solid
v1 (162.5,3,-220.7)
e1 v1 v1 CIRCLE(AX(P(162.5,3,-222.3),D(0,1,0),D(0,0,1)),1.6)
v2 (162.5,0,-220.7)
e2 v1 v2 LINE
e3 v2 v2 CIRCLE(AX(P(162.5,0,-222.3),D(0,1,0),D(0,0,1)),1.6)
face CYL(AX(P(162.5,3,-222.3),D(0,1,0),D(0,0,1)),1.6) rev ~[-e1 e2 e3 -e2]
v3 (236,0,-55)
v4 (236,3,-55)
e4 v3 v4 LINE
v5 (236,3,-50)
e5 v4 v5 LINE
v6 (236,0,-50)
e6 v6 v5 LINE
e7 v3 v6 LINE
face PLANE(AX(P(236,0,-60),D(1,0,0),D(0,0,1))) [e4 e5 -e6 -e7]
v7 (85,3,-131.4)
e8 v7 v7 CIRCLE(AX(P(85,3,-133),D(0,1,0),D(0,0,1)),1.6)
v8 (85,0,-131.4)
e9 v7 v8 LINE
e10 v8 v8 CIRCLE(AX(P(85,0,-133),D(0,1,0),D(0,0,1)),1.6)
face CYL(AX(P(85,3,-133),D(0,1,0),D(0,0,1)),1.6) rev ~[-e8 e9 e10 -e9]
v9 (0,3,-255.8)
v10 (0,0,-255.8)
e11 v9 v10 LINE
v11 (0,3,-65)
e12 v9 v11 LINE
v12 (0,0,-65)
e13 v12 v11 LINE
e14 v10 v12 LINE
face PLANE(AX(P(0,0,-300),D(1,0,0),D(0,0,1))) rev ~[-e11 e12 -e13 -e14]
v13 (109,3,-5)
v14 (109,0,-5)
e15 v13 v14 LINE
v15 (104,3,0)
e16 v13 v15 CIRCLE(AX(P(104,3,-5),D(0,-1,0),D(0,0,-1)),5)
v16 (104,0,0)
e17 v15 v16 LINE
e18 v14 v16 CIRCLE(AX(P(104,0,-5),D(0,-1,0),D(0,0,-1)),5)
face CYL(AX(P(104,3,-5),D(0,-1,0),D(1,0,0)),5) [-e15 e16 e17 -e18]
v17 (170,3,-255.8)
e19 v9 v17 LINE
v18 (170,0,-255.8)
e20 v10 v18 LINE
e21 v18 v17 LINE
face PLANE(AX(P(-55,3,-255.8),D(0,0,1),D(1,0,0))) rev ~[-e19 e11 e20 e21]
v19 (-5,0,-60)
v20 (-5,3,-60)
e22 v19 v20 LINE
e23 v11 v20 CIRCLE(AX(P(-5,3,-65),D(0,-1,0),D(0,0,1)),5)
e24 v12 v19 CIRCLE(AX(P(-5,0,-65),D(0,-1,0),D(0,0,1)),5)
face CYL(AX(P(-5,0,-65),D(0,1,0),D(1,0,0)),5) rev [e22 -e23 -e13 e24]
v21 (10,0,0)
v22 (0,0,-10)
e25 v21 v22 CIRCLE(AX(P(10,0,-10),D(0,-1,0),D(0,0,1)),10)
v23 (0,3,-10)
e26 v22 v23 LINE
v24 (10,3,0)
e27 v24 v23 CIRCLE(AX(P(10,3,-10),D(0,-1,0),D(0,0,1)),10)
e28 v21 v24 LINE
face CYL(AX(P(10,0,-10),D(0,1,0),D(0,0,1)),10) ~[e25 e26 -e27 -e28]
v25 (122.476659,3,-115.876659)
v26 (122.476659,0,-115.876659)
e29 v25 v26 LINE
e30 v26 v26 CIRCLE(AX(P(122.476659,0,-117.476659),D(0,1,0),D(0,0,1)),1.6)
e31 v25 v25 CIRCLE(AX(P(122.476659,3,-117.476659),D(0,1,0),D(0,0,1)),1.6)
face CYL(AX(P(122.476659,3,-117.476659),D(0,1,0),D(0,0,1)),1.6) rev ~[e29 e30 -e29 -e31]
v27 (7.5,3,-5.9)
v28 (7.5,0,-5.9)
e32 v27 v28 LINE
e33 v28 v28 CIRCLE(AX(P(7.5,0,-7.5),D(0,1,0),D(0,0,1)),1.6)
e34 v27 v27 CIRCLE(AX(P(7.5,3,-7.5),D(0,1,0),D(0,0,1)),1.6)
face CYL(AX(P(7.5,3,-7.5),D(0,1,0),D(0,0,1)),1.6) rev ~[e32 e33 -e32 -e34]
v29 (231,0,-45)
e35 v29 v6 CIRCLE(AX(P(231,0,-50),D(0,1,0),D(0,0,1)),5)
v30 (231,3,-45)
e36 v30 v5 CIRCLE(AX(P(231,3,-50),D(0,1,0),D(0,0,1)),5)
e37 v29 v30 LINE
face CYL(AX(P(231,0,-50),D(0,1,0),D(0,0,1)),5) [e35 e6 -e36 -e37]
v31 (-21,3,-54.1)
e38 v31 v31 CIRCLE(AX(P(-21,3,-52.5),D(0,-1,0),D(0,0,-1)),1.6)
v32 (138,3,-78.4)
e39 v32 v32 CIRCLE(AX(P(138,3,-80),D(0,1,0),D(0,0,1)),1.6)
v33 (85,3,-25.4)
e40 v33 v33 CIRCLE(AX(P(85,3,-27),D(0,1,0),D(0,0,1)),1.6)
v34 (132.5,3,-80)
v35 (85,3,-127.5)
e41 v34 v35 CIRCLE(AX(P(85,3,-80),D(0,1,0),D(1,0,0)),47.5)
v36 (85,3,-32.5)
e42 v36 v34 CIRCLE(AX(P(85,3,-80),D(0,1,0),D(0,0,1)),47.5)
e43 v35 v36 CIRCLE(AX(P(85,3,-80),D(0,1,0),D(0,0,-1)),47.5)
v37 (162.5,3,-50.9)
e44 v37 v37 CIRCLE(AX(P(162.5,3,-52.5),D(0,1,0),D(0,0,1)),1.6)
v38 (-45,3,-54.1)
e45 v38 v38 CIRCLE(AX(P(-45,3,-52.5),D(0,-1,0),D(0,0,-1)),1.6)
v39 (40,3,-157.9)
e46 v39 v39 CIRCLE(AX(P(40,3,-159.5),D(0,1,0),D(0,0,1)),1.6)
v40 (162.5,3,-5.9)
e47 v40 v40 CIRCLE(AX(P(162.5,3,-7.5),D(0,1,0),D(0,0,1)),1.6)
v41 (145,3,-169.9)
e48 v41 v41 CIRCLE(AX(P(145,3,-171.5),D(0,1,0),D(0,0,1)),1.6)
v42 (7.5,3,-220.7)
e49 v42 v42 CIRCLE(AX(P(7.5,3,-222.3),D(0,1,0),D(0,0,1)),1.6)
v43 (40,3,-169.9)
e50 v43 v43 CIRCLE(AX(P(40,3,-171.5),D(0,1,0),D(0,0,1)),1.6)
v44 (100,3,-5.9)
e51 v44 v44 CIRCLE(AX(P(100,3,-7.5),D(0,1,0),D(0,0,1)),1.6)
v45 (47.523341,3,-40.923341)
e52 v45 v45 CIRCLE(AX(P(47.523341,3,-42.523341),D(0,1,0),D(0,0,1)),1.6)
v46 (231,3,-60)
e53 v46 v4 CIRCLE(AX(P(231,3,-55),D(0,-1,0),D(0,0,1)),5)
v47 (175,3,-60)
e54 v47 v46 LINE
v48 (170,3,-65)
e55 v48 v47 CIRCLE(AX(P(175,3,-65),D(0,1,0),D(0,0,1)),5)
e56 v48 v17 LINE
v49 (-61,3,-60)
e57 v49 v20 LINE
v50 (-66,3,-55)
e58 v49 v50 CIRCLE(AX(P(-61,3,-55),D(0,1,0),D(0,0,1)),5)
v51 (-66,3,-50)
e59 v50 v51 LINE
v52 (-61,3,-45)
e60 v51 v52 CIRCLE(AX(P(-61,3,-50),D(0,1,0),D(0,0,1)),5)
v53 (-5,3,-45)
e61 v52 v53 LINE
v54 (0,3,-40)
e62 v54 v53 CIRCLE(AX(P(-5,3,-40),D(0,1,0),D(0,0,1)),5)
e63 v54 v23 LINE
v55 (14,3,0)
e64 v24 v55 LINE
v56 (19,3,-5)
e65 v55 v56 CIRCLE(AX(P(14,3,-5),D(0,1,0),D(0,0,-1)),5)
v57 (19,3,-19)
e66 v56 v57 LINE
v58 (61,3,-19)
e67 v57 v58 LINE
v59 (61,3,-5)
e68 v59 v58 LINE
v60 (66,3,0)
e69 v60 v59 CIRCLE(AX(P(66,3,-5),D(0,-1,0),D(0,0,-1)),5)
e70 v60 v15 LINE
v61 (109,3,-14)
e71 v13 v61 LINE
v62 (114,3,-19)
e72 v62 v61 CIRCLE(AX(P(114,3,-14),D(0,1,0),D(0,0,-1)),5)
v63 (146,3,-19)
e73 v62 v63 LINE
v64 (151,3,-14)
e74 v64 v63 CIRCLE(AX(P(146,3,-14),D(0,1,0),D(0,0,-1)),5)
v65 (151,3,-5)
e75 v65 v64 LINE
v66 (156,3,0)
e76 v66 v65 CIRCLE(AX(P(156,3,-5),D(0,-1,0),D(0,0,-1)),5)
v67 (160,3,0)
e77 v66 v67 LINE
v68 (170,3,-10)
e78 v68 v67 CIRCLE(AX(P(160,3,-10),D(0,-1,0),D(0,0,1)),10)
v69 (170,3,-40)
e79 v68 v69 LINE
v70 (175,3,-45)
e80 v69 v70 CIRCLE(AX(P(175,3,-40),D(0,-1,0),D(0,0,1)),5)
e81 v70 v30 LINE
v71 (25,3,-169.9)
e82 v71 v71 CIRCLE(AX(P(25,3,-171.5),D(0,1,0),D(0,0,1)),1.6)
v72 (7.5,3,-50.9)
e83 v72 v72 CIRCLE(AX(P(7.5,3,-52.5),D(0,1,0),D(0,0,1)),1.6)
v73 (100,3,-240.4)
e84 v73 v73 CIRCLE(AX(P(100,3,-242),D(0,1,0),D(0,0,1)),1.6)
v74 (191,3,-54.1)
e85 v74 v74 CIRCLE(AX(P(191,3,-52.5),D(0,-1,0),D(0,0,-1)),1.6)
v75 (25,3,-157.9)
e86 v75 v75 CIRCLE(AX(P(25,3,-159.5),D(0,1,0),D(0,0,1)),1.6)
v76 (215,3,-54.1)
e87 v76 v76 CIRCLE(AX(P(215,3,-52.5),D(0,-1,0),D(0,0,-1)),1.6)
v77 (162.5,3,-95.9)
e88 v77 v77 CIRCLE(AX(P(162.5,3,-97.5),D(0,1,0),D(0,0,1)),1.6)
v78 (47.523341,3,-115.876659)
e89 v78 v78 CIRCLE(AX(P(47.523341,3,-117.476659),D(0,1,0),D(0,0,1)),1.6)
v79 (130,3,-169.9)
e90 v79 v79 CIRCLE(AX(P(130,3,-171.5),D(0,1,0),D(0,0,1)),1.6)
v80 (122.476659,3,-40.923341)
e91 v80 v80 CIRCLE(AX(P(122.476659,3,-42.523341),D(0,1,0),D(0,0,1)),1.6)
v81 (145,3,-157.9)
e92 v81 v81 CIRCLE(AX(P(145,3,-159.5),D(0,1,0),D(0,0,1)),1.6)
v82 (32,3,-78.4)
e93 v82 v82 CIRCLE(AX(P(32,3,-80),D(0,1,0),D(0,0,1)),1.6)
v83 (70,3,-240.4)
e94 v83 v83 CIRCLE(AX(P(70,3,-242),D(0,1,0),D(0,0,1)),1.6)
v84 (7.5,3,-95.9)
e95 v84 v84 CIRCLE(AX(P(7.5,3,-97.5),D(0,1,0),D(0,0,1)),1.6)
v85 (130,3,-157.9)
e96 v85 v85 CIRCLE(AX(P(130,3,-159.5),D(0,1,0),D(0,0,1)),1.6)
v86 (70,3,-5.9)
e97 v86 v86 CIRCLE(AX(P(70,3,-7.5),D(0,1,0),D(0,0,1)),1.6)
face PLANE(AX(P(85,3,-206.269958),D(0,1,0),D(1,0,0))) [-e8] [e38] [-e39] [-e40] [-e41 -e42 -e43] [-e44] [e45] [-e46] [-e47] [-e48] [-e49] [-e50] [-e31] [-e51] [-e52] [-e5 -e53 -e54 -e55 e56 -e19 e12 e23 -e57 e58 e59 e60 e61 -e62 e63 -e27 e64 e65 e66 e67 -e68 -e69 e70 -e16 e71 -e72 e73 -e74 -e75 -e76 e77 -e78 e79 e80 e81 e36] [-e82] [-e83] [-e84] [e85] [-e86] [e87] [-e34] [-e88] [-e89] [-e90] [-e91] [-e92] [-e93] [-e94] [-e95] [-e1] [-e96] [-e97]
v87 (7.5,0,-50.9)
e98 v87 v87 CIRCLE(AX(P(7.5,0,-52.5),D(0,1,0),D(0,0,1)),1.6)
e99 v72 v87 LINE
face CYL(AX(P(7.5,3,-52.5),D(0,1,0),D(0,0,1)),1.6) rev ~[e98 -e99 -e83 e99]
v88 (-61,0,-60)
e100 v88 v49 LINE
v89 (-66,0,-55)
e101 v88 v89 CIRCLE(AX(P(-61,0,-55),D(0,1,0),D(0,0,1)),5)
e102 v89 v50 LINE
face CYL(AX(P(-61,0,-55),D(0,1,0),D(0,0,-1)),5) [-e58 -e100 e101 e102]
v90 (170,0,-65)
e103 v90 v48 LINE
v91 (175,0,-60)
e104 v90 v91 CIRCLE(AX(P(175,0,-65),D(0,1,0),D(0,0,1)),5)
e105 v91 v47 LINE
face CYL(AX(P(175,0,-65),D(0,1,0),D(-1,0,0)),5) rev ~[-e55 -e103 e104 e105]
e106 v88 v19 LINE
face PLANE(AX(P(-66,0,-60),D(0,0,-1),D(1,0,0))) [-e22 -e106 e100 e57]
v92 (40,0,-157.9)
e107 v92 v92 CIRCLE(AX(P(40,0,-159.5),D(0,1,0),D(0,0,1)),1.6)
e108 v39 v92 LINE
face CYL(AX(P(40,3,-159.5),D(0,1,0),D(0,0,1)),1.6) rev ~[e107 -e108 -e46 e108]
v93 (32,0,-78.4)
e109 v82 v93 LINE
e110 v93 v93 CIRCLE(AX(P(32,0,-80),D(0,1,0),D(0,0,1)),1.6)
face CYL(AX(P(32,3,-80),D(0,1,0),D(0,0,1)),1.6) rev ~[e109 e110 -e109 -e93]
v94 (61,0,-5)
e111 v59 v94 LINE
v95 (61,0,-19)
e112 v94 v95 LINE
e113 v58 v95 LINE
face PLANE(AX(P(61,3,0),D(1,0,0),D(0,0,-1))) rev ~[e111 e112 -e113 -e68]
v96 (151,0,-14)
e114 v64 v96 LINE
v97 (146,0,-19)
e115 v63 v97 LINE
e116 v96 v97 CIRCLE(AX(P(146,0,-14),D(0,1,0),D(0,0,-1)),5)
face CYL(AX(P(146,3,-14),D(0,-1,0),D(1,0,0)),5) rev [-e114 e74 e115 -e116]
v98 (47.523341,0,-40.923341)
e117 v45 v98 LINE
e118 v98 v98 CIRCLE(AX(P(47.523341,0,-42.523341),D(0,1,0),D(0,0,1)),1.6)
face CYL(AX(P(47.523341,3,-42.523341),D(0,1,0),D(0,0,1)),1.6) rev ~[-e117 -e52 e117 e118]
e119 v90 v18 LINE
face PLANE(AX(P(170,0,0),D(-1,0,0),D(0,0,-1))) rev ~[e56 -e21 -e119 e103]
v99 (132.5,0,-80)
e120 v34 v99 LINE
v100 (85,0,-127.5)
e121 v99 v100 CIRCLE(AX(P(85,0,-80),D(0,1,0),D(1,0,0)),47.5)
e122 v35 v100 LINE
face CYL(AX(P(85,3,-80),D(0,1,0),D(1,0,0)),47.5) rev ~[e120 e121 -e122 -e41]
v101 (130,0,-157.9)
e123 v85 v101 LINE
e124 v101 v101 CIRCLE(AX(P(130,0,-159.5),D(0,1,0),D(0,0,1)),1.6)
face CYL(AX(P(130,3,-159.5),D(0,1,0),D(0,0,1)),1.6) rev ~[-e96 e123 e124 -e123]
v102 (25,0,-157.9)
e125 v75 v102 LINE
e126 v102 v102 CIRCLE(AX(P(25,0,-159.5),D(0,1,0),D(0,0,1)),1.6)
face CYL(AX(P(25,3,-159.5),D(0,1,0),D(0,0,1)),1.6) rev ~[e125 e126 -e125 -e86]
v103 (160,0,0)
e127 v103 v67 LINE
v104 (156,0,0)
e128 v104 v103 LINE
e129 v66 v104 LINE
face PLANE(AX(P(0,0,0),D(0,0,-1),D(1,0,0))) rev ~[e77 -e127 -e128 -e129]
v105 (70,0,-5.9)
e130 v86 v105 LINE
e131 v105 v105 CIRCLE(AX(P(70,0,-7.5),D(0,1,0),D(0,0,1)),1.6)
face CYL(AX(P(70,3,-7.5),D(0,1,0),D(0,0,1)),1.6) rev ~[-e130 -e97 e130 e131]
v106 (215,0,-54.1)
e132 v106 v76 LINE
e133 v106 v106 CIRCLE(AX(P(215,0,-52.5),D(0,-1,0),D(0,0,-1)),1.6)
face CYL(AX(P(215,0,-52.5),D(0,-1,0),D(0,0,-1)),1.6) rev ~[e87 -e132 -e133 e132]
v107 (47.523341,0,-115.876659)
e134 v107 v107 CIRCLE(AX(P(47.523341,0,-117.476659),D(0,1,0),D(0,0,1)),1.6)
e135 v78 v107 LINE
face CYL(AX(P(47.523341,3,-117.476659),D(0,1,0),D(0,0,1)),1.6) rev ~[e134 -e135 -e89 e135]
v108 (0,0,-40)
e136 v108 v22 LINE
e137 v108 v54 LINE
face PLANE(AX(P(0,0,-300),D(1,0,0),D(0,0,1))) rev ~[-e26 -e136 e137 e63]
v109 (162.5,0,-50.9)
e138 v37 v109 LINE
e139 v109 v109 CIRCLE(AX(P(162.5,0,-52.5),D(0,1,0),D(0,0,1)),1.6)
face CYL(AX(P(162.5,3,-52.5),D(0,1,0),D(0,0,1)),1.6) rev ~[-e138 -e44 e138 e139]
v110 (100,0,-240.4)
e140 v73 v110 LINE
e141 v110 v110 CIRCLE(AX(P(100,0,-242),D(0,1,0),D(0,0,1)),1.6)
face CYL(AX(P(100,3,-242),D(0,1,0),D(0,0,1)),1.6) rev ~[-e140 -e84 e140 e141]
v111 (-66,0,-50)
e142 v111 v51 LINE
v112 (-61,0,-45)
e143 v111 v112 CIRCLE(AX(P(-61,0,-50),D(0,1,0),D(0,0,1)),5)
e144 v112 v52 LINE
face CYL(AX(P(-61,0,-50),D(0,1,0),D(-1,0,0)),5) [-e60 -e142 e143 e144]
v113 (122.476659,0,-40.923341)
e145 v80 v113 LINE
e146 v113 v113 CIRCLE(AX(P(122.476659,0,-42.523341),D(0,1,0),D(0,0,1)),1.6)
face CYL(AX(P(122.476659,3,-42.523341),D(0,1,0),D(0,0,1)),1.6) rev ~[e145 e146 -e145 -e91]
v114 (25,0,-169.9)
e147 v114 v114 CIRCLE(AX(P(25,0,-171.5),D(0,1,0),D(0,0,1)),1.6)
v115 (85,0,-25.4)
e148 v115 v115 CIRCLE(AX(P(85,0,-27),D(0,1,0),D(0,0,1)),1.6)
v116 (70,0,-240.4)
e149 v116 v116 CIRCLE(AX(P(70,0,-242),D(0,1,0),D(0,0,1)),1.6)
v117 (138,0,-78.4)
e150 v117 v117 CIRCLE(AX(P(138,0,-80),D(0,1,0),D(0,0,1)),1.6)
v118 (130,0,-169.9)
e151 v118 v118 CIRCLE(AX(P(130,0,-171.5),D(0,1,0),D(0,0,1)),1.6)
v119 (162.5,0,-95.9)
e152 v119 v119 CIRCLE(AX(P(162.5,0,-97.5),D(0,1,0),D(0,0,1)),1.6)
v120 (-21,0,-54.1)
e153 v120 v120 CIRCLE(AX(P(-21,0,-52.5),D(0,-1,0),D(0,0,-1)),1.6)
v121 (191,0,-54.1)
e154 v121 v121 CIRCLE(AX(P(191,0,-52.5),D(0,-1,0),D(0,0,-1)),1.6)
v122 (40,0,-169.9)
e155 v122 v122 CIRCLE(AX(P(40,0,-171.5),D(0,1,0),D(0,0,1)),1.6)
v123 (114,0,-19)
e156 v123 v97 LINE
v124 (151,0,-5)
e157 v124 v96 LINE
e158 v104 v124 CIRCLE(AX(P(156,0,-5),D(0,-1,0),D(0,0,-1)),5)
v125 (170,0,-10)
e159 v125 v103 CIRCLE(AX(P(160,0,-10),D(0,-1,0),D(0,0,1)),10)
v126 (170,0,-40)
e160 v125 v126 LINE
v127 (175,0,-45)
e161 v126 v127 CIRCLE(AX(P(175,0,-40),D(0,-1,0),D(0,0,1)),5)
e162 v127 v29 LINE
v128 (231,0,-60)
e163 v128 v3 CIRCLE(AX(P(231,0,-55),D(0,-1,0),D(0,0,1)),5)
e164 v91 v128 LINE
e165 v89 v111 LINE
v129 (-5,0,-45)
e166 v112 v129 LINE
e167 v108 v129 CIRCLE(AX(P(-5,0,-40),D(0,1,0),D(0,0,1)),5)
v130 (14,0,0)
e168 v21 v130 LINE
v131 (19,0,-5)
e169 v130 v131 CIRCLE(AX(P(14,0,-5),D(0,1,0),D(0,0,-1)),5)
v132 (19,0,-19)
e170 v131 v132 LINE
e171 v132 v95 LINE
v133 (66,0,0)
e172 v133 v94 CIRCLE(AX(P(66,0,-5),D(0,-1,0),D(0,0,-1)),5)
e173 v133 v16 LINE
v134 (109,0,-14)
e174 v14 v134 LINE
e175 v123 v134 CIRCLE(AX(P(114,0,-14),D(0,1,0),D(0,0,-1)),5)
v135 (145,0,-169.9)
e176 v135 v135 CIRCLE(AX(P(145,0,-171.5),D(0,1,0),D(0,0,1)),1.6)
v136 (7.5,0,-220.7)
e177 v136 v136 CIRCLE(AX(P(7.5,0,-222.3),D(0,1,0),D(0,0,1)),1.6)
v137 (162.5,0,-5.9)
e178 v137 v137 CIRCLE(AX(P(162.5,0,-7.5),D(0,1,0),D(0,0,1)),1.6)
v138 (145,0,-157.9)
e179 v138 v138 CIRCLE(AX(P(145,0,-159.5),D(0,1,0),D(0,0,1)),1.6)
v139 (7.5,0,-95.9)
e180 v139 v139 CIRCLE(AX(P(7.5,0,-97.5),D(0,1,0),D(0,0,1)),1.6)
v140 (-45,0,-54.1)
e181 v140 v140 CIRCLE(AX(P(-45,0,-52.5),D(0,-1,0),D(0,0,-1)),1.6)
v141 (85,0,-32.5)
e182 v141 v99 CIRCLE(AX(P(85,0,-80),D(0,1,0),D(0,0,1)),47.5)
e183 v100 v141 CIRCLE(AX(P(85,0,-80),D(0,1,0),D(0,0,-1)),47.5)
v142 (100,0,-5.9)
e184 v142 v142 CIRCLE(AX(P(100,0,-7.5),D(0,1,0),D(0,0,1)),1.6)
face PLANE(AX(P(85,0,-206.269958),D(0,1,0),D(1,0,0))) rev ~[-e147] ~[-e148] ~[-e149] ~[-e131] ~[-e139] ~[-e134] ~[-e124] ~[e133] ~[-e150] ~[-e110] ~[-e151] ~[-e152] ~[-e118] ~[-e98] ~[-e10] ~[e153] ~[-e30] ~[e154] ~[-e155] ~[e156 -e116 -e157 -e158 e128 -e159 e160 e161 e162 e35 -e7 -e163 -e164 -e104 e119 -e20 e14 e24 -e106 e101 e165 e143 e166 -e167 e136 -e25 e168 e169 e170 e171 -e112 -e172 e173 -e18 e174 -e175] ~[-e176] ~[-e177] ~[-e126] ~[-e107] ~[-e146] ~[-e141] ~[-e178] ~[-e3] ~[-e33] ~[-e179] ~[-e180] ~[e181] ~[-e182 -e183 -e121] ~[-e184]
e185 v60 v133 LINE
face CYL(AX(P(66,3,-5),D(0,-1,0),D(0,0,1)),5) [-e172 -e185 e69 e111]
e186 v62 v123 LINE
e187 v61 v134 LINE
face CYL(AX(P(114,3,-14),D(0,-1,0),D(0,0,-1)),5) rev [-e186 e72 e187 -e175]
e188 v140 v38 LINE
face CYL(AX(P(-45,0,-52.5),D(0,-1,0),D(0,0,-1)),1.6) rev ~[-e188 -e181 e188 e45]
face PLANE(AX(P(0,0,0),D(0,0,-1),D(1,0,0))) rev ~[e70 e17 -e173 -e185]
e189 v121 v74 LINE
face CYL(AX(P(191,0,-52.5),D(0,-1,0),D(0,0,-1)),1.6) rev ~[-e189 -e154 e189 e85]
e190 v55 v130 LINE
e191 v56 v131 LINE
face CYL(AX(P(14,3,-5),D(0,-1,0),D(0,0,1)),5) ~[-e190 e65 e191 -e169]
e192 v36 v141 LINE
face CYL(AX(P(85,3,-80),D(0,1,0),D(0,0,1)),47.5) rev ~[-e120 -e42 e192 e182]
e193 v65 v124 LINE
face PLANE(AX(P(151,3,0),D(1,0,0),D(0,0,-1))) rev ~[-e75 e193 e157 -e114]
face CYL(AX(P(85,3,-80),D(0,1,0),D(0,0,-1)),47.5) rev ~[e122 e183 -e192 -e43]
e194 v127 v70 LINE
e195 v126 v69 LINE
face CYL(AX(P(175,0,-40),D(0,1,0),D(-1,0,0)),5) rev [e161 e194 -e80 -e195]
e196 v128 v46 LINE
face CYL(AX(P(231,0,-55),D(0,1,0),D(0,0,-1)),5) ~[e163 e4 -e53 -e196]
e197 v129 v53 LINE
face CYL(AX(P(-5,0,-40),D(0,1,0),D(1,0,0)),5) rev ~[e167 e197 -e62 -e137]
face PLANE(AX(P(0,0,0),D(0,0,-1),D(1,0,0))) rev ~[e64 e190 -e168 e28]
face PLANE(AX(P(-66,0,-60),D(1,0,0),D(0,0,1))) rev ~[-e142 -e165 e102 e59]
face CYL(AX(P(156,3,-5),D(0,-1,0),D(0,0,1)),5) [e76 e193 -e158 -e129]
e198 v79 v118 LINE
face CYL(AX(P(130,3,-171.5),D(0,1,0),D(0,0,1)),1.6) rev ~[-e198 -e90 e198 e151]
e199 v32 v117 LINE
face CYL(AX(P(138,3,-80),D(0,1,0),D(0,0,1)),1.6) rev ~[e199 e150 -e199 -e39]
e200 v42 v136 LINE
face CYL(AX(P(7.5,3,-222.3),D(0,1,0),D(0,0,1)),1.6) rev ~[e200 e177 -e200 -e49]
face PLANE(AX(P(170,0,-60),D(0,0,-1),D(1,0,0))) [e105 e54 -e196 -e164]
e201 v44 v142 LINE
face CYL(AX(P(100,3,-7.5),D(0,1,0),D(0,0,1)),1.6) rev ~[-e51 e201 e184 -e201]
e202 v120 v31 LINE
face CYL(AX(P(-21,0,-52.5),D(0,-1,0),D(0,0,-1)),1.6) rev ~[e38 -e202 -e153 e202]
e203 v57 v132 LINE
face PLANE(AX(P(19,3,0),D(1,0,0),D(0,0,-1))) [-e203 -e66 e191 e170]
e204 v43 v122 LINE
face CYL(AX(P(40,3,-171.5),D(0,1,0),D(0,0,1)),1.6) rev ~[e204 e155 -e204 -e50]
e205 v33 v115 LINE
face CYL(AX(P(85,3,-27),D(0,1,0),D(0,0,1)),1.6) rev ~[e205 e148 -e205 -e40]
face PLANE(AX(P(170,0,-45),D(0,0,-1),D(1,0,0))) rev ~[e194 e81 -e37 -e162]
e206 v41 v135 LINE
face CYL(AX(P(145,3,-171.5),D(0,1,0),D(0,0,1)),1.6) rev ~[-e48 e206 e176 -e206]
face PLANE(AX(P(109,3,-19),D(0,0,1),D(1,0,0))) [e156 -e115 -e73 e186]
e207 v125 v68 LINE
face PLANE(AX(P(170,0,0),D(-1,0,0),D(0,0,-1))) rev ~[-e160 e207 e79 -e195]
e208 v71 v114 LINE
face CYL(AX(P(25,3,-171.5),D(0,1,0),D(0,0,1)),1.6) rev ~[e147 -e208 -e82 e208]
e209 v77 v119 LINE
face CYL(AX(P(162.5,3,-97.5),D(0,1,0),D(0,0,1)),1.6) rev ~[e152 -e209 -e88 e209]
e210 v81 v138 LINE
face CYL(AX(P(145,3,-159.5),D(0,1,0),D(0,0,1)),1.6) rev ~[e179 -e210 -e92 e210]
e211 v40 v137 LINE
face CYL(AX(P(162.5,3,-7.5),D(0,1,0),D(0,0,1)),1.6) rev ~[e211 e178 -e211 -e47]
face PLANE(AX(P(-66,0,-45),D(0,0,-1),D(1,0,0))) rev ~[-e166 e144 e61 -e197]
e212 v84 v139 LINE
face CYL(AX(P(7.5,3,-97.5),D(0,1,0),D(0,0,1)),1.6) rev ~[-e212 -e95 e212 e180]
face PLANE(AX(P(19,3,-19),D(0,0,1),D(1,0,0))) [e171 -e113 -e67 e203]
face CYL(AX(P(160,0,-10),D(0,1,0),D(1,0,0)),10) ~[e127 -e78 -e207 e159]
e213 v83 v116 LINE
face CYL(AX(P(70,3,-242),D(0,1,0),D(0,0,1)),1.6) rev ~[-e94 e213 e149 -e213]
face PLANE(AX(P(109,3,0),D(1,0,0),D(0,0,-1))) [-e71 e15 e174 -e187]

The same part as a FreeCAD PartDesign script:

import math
import FreeCAD as App
import Part
import Sketcher
from FreeCAD import Vector
Q = App.Units.Quantity


def edges_at(feature, points):
    """Names of the edges that pass closest to the given points."""
    edges = feature.Shape.Edges
    near = lambda p: min(range(len(edges)), key=lambda i: edges[i].distToShape(Part.Vertex(*p))[0])
    return sorted({f"Edge{near(p) + 1}" for p in points})

doc = App.newDocument("Part")
body = doc.addObject("PartDesign::Body", "Body")

sketch1 = body.newObject("Sketcher::SketchObject", "Sketch")
sketch1.AttachmentSupport = (doc.getObject("XZ_Plane"), [""])
sketch1.MapMode = "FlatFace"
sketch1.addGeometry(Part.LineSegment(Vector(0, 0, 0), Vector(170, 0, 0)), False)
sketch1.addGeometry(Part.LineSegment(Vector(170, 0, 0), Vector(170, -300, 0)), False)
sketch1.addGeometry(Part.LineSegment(Vector(170, -300, 0), Vector(225, -300, 0)), False)
sketch1.addGeometry(Part.LineSegment(Vector(225, -300, 0), Vector(225, -368, 0)), False)
sketch1.addGeometry(Part.LineSegment(Vector(225, -368, 0), Vector(85, -330, 0)), False)
sketch1.addGeometry(Part.LineSegment(Vector(85, -330, 0), Vector(-55, -368, 0)), False)
sketch1.addGeometry(Part.LineSegment(Vector(-55, -368, 0), Vector(-55, -300, 0)), False)
sketch1.addGeometry(Part.LineSegment(Vector(-55, -300, 0), Vector(0, -300, 0)), False)
sketch1.addGeometry(Part.LineSegment(Vector(0, -300, 0), Vector(0, 0, 0)), False)
sketch1.addConstraint(Sketcher.Constraint("Coincident", 0, 2, 1, 1))
sketch1.addConstraint(Sketcher.Constraint("Coincident", 1, 2, 2, 1))
sketch1.addConstraint(Sketcher.Constraint("Coincident", 2, 2, 3, 1))
sketch1.addConstraint(Sketcher.Constraint("Coincident", 3, 2, 4, 1))
sketch1.addConstraint(Sketcher.Constraint("Coincident", 4, 2, 5, 1))
sketch1.addConstraint(Sketcher.Constraint("Coincident", 5, 2, 6, 1))
sketch1.addConstraint(Sketcher.Constraint("Coincident", 6, 2, 7, 1))
sketch1.addConstraint(Sketcher.Constraint("Coincident", 7, 2, 8, 1))
sketch1.addConstraint(Sketcher.Constraint("Coincident", 8, 2, 0, 1))
sketch1.addConstraint(Sketcher.Constraint("Horizontal", 0))
sketch1.addConstraint(Sketcher.Constraint("Vertical", 1))
sketch1.addConstraint(Sketcher.Constraint("Horizontal", 2))
sketch1.addConstraint(Sketcher.Constraint("Vertical", 3))
sketch1.addConstraint(Sketcher.Constraint("Vertical", 6))
sketch1.addConstraint(Sketcher.Constraint("Horizontal", 7))
sketch1.addConstraint(Sketcher.Constraint("Vertical", 8))
sketch1.addConstraint(Sketcher.Constraint("Coincident", 8, 2, -1, 1))
sketch1.addConstraint(Sketcher.Constraint("Horizontal", 3, 2, 5, 2))
sketch1.addConstraint(Sketcher.Constraint("Horizontal", 2, 2, 6, 2))
sketch1.addConstraint(Sketcher.Constraint("Equal", 2, 7))
sketch1.addConstraint(Sketcher.Constraint("Equal", 4, 5))
sketch1.addConstraint(Sketcher.Constraint("DistanceX", 0, 1, 0, 2, 170.0))
sketch1.addConstraint(Sketcher.Constraint("DistanceX", 2, 1, 2, 2, 55.0))
sketch1.addConstraint(Sketcher.Constraint("DistanceY", 1, 2, 1, 1, 300.0))
sketch1.addConstraint(Sketcher.Constraint("Angle", 4, Q("165 deg")))
sketch1.addConstraint(Sketcher.Constraint("DistanceY", 4, 2, -1, 1, 330.0))
pad1 = body.newObject("PartDesign::Pad", "Pad")
pad1.Profile = sketch1
pad1.Length = 3
pad1.Reversed = True
doc.recompute()

fillet = body.newObject("PartDesign::Fillet", "Fillet")
fillet.Base = (pad1, edges_at(pad1, [(85, 1.5, -330)]))
fillet.Radius = 200
doc.recompute()

fillet2 = body.newObject("PartDesign::Fillet", "Fillet001")
fillet2.Base = (fillet, edges_at(fillet, [
    (0, 1.5, -300),
    (-55, 1.5, -300),
    (-55, 1.5, -367.513),
    (225, 1.5, -367.513),
    (225, 1.5, -300),
    (170, 1.5, -300),
    (170, 1.5, 0),
    (0, 1.5, 0),
]))
fillet2.Radius = 10

sketch2 = body.newObject("Sketcher::SketchObject", "Sketch001")
sketch2.AttachmentSupport = (doc.getObject("XZ_Plane"), [""])
sketch2.MapMode = "FlatFace"
sketch2.AttachmentOffset = App.Placement(Vector(0, 0, -3), App.Rotation())
sketch2.addGeometry(Part.ArcOfCircle(Part.Circle(Vector(85, -80, 0), Vector(0, 0, 1), 48), math.radians(-90), math.radians(0)), False)
sketch2.addGeometry(Part.ArcOfCircle(Part.Circle(Vector(85, -80, 0), Vector(0, 0, 1), 48), math.radians(90), math.radians(270)), False)
sketch2.addGeometry(Part.ArcOfCircle(Part.Circle(Vector(85, -80, 0), Vector(0, 0, 1), 48), math.radians(0), math.radians(90)), False)
sketch2.addConstraint(Sketcher.Constraint("Tangent", 0, 1, 1, 2))
sketch2.addConstraint(Sketcher.Constraint("Tangent", 1, 1, 2, 2))
sketch2.addConstraint(Sketcher.Constraint("Tangent", 2, 1, 0, 2))
sketch2.addConstraint(Sketcher.Constraint("Horizontal", 1, 3, 2, 1))
sketch2.addConstraint(Sketcher.Constraint("Vertical", 2, 3, 0, 1))
sketch2.addConstraint(Sketcher.Constraint("Vertical", 0, 1, 1, 1))
sketch2.addConstraint(Sketcher.Constraint("Radius", 0, 47.5))
sketch2.addConstraint(Sketcher.Constraint("DistanceX", -1, 1, 0, 3, 85.0))
sketch2.addConstraint(Sketcher.Constraint("DistanceY", 0, 3, -1, 1, 80.0))
pocket1 = body.newObject("PartDesign::Pocket", "Pocket")
pocket1.Profile = sketch2
pocket1.Type = "ThroughAll"
pocket1.Reversed = True

sketch3 = body.newObject("Sketcher::SketchObject", "Sketch002")
sketch3.AttachmentSupport = (doc.getObject("XZ_Plane"), [""])
sketch3.MapMode = "FlatFace"
sketch3.AttachmentOffset = App.Placement(Vector(0, 0, -3), App.Rotation())
sketch3.addGeometry(Part.LineSegment(Vector(19, -279, 0), Vector(19, -256, 0)), False)
sketch3.addGeometry(Part.LineSegment(Vector(19, -256, 0), Vector(61, -256, 0)), False)
sketch3.addGeometry(Part.LineSegment(Vector(61, -256, 0), Vector(61, -279, 0)), False)
sketch3.addGeometry(Part.LineSegment(Vector(61, -279, 0), Vector(19, -279, 0)), False)
sketch3.addGeometry(Part.LineSegment(Vector(109, -279, 0), Vector(109, -256, 0)), False)
sketch3.addGeometry(Part.LineSegment(Vector(109, -256, 0), Vector(151, -256, 0)), False)
sketch3.addGeometry(Part.LineSegment(Vector(151, -256, 0), Vector(151, -279, 0)), False)
sketch3.addGeometry(Part.LineSegment(Vector(151, -279, 0), Vector(109, -279, 0)), False)
sketch3.addGeometry(Part.LineSegment(Vector(19, -19, 0), Vector(19, 0, 0)), False)
sketch3.addGeometry(Part.LineSegment(Vector(19, 0, 0), Vector(61, 0, 0)), False)
sketch3.addGeometry(Part.LineSegment(Vector(61, 0, 0), Vector(61, -19, 0)), False)
sketch3.addGeometry(Part.LineSegment(Vector(61, -19, 0), Vector(19, -19, 0)), False)
sketch3.addGeometry(Part.LineSegment(Vector(109, -19, 0), Vector(109, 0, 0)), False)
sketch3.addGeometry(Part.LineSegment(Vector(109, 0, 0), Vector(151, 0, 0)), False)
sketch3.addGeometry(Part.LineSegment(Vector(151, 0, 0), Vector(151, -19, 0)), False)
sketch3.addGeometry(Part.LineSegment(Vector(151, -19, 0), Vector(109, -19, 0)), False)
sketch3.addConstraint(Sketcher.Constraint("Coincident", 0, 2, 1, 1))
sketch3.addConstraint(Sketcher.Constraint("Coincident", 1, 2, 2, 1))
sketch3.addConstraint(Sketcher.Constraint("Coincident", 2, 2, 3, 1))
sketch3.addConstraint(Sketcher.Constraint("Coincident", 3, 2, 0, 1))
sketch3.addConstraint(Sketcher.Constraint("Coincident", 4, 2, 5, 1))
sketch3.addConstraint(Sketcher.Constraint("Coincident", 5, 2, 6, 1))
sketch3.addConstraint(Sketcher.Constraint("Coincident", 6, 2, 7, 1))
sketch3.addConstraint(Sketcher.Constraint("Coincident", 7, 2, 4, 1))
sketch3.addConstraint(Sketcher.Constraint("Coincident", 8, 2, 9, 1))
sketch3.addConstraint(Sketcher.Constraint("Coincident", 9, 2, 10, 1))
sketch3.addConstraint(Sketcher.Constraint("Coincident", 10, 2, 11, 1))
sketch3.addConstraint(Sketcher.Constraint("Coincident", 11, 2, 8, 1))
sketch3.addConstraint(Sketcher.Constraint("Coincident", 12, 2, 13, 1))
sketch3.addConstraint(Sketcher.Constraint("Coincident", 13, 2, 14, 1))
sketch3.addConstraint(Sketcher.Constraint("Coincident", 14, 2, 15, 1))
sketch3.addConstraint(Sketcher.Constraint("Coincident", 15, 2, 12, 1))
sketch3.addConstraint(Sketcher.Constraint("Vertical", 0))
sketch3.addConstraint(Sketcher.Constraint("Horizontal", 1))
sketch3.addConstraint(Sketcher.Constraint("Vertical", 2))
sketch3.addConstraint(Sketcher.Constraint("Horizontal", 3))
sketch3.addConstraint(Sketcher.Constraint("Vertical", 4))
sketch3.addConstraint(Sketcher.Constraint("Horizontal", 5))
sketch3.addConstraint(Sketcher.Constraint("Vertical", 6))
sketch3.addConstraint(Sketcher.Constraint("Horizontal", 7))
sketch3.addConstraint(Sketcher.Constraint("Vertical", 8))
sketch3.addConstraint(Sketcher.Constraint("Horizontal", 9))
sketch3.addConstraint(Sketcher.Constraint("Vertical", 10))
sketch3.addConstraint(Sketcher.Constraint("Horizontal", 11))
sketch3.addConstraint(Sketcher.Constraint("Vertical", 12))
sketch3.addConstraint(Sketcher.Constraint("Horizontal", 13))
sketch3.addConstraint(Sketcher.Constraint("Vertical", 14))
sketch3.addConstraint(Sketcher.Constraint("Horizontal", 15))
sketch3.addConstraint(Sketcher.Constraint("PointOnObject", 8, 2, -1))
sketch3.addConstraint(Sketcher.Constraint("PointOnObject", 12, 2, -1))
sketch3.addConstraint(Sketcher.Constraint("Horizontal", 1, 2, 4, 2))
sketch3.addConstraint(Sketcher.Constraint("Horizontal", 3, 2, 6, 2))
sketch3.addConstraint(Sketcher.Constraint("Horizontal", 11, 2, 14, 2))
sketch3.addConstraint(Sketcher.Constraint("Vertical", 3, 2, 8, 2))
sketch3.addConstraint(Sketcher.Constraint("Vertical", 2, 2, 9, 2))
sketch3.addConstraint(Sketcher.Constraint("Vertical", 7, 2, 12, 2))
sketch3.addConstraint(Sketcher.Constraint("Vertical", 6, 2, 13, 2))
sketch3.addConstraint(Sketcher.Constraint("Equal", 3, 5))
sketch3.addConstraint(Sketcher.Constraint("DistanceX", 1, 1, 1, 2, 42.0))
sketch3.addConstraint(Sketcher.Constraint("DistanceY", 0, 1, 0, 2, 23.0))
sketch3.addConstraint(Sketcher.Constraint("DistanceY", 8, 1, 8, 2, 19.0))
sketch3.addConstraint(Sketcher.Constraint("DistanceX", -1, 1, 0, 2, 19.0))
sketch3.addConstraint(Sketcher.Constraint("DistanceX", -1, 1, 4, 2, 109.0))
sketch3.addConstraint(Sketcher.Constraint("DistanceY", 0, 2, -1, 1, 255.8))
pocket2 = body.newObject("PartDesign::Pocket", "Pocket001")
pocket2.Profile = sketch3
pocket2.Type = "ThroughAll"
pocket2.Reversed = True

sketch4 = body.newObject("Sketcher::SketchObject", "Sketch003")
sketch4.AttachmentSupport = (doc.getObject("XZ_Plane"), [""])
sketch4.MapMode = "FlatFace"
sketch4.AttachmentOffset = App.Placement(Vector(0, 0, -3), App.Rotation())
sketch4.addGeometry(Part.Circle(Vector(85, -133, 0), Vector(0, 0, 1), 1.6), False)
sketch4.addGeometry(Part.Circle(Vector(122.5, -117.5, 0), Vector(0, 0, 1), 1.6), False)
sketch4.addGeometry(Part.Circle(Vector(138, -80, 0), Vector(0, 0, 1), 1.6), False)
sketch4.addGeometry(Part.Circle(Vector(122.5, -42.5, 0), Vector(0, 0, 1), 1.6), False)
sketch4.addGeometry(Part.Circle(Vector(85, -27, 0), Vector(0, 0, 1), 1.6), False)
sketch4.addGeometry(Part.Circle(Vector(47.5, -42.5, 0), Vector(0, 0, 1), 1.6), False)
sketch4.addGeometry(Part.Circle(Vector(32, -80, 0), Vector(0, 0, 1), 1.6), False)
sketch4.addGeometry(Part.Circle(Vector(47.5, -117.5, 0), Vector(0, 0, 1), 1.6), False)
sketch4.addConstraint(Sketcher.Constraint("Equal", 0, 1))
sketch4.addConstraint(Sketcher.Constraint("Equal", 1, 2))
sketch4.addConstraint(Sketcher.Constraint("Equal", 2, 3))
sketch4.addConstraint(Sketcher.Constraint("Equal", 3, 4))
sketch4.addConstraint(Sketcher.Constraint("Equal", 4, 5))
sketch4.addConstraint(Sketcher.Constraint("Equal", 5, 6))
sketch4.addConstraint(Sketcher.Constraint("Equal", 6, 7))
sketch4.addConstraint(Sketcher.Constraint("Horizontal", 3, 3, 5, 3))
sketch4.addConstraint(Sketcher.Constraint("Horizontal", 2, 3, 6, 3))
sketch4.addConstraint(Sketcher.Constraint("Horizontal", 1, 3, 7, 3))
sketch4.addConstraint(Sketcher.Constraint("Vertical", 1, 3, 3, 3))
sketch4.addConstraint(Sketcher.Constraint("Vertical", 0, 3, 4, 3))
sketch4.addConstraint(Sketcher.Constraint("Vertical", 5, 3, 7, 3))
sketch4.addConstraint(Sketcher.Constraint("Diameter", 0, 3.2))
sketch4.addConstraint(Sketcher.Constraint("DistanceX", -1, 1, 0, 3, 85.0))
sketch4.addConstraint(Sketcher.Constraint("DistanceY", 0, 3, -1, 1, 133.0))
sketch4.addConstraint(Sketcher.Constraint("DistanceX", -1, 1, 2, 3, 138.0))
sketch4.addConstraint(Sketcher.Constraint("DistanceY", 2, 3, -1, 1, 80.0))
sketch4.addConstraint(Sketcher.Constraint("DistanceY", 4, 3, -1, 1, 27.0))
sketch4.addConstraint(Sketcher.Constraint("DistanceX", -1, 1, 6, 3, 32.0))
sketch4.addConstraint(Sketcher.Constraint("DistanceX", -1, 1, 1, 3, 122.476659))
sketch4.addConstraint(Sketcher.Constraint("DistanceY", 1, 3, -1, 1, 117.476659))
sketch4.addConstraint(Sketcher.Constraint("DistanceY", 3, 3, -1, 1, 42.523341))
sketch4.addConstraint(Sketcher.Constraint("DistanceX", -1, 1, 5, 3, 47.523341))
pocket3 = body.newObject("PartDesign::Pocket", "Pocket002")
pocket3.Profile = sketch4
pocket3.Type = "ThroughAll"
pocket3.Reversed = True

sketch5 = body.newObject("Sketcher::SketchObject", "Sketch004")
sketch5.AttachmentSupport = (doc.getObject("XZ_Plane"), [""])
sketch5.MapMode = "FlatFace"
sketch5.AttachmentOffset = App.Placement(Vector(0, 0, -3), App.Rotation())
sketch5.addGeometry(Part.Circle(Vector(7.5, -312, 0), Vector(0, 0, 1), 1.6), False)
sketch5.addGeometry(Part.Circle(Vector(7.5, -267.3, 0), Vector(0, 0, 1), 1.6), False)
sketch5.addGeometry(Part.Circle(Vector(7.5, -222.3, 0), Vector(0, 0, 1), 1.6), False)
sketch5.addGeometry(Part.Circle(Vector(7.5, -97.5, 0), Vector(0, 0, 1), 1.6), False)
sketch5.addGeometry(Part.Circle(Vector(7.5, -7.5, 0), Vector(0, 0, 1), 1.6), False)
sketch5.addGeometry(Part.Circle(Vector(7.5, -52.5, 0), Vector(0, 0, 1), 1.6), False)
sketch5.addGeometry(Part.Circle(Vector(70, -7.5, 0), Vector(0, 0, 1), 1.6), False)
sketch5.addGeometry(Part.Circle(Vector(100, -7.5, 0), Vector(0, 0, 1), 1.6), False)
sketch5.addGeometry(Part.Circle(Vector(162.5, -7.5, 0), Vector(0, 0, 1), 1.6), False)
sketch5.addGeometry(Part.Circle(Vector(162.5, -52.5, 0), Vector(0, 0, 1), 1.6), False)
sketch5.addGeometry(Part.Circle(Vector(162.5, -97.5, 0), Vector(0, 0, 1), 1.6), False)
sketch5.addGeometry(Part.Circle(Vector(162.5, -222.3, 0), Vector(0, 0, 1), 1.6), False)
sketch5.addGeometry(Part.Circle(Vector(162.5, -267.3, 0), Vector(0, 0, 1), 1.6), False)
sketch5.addGeometry(Part.Circle(Vector(162.5, -312, 0), Vector(0, 0, 1), 1.6), False)
sketch5.addGeometry(Part.Circle(Vector(162.5, -342.8, 0), Vector(0, 0, 1), 1.6), False)
sketch5.addGeometry(Part.Circle(Vector(109.3, -328.5, 0), Vector(0, 0, 1), 1.6), False)
sketch5.addGeometry(Part.Circle(Vector(60.7, -328.5, 0), Vector(0, 0, 1), 1.6), False)
sketch5.addGeometry(Part.Circle(Vector(7.5, -342.8, 0), Vector(0, 0, 1), 1.6), False)
sketch5.addGeometry(Part.Circle(Vector(70, -267.5, 0), Vector(0, 0, 1), 1.6), False)
sketch5.addGeometry(Part.Circle(Vector(100, -267.5, 0), Vector(0, 0, 1), 1.6), False)
sketch5.addConstraint(Sketcher.Constraint("Equal", 0, 1))
sketch5.addConstraint(Sketcher.Constraint("Equal", 1, 2))
sketch5.addConstraint(Sketcher.Constraint("Equal", 2, 3))
sketch5.addConstraint(Sketcher.Constraint("Equal", 3, 4))
sketch5.addConstraint(Sketcher.Constraint("Equal", 4, 5))
sketch5.addConstraint(Sketcher.Constraint("Equal", 5, 6))
sketch5.addConstraint(Sketcher.Constraint("Equal", 6, 7))
sketch5.addConstraint(Sketcher.Constraint("Equal", 7, 8))
sketch5.addConstraint(Sketcher.Constraint("Equal", 8, 9))
sketch5.addConstraint(Sketcher.Constraint("Equal", 9, 10))
sketch5.addConstraint(Sketcher.Constraint("Equal", 10, 11))
sketch5.addConstraint(Sketcher.Constraint("Equal", 11, 12))
sketch5.addConstraint(Sketcher.Constraint("Equal", 12, 13))
sketch5.addConstraint(Sketcher.Constraint("Equal", 13, 14))
sketch5.addConstraint(Sketcher.Constraint("Equal", 14, 15))
sketch5.addConstraint(Sketcher.Constraint("Equal", 15, 16))
sketch5.addConstraint(Sketcher.Constraint("Equal", 16, 17))
sketch5.addConstraint(Sketcher.Constraint("Equal", 17, 18))
sketch5.addConstraint(Sketcher.Constraint("Equal", 18, 19))
sketch5.addConstraint(Sketcher.Constraint("Horizontal", 4, 3, 6, 3))
sketch5.addConstraint(Sketcher.Constraint("Horizontal", 6, 3, 7, 3))
sketch5.addConstraint(Sketcher.Constraint("Horizontal", 7, 3, 8, 3))
sketch5.addConstraint(Sketcher.Constraint("Horizontal", 5, 3, 9, 3))
sketch5.addConstraint(Sketcher.Constraint("Horizontal", 3, 3, 10, 3))
sketch5.addConstraint(Sketcher.Constraint("Horizontal", 2, 3, 11, 3))
sketch5.addConstraint(Sketcher.Constraint("Horizontal", 1, 3, 12, 3))
sketch5.addConstraint(Sketcher.Constraint("Horizontal", 0, 3, 13, 3))
sketch5.addConstraint(Sketcher.Constraint("Horizontal", 15, 3, 16, 3))
sketch5.addConstraint(Sketcher.Constraint("Horizontal", 14, 3, 17, 3))
sketch5.addConstraint(Sketcher.Constraint("Horizontal", 18, 3, 19, 3))
sketch5.addConstraint(Sketcher.Constraint("Vertical", 0, 3, 1, 3))
sketch5.addConstraint(Sketcher.Constraint("Vertical", 1, 3, 2, 3))
sketch5.addConstraint(Sketcher.Constraint("Vertical", 2, 3, 3, 3))
sketch5.addConstraint(Sketcher.Constraint("Vertical", 3, 3, 4, 3))
sketch5.addConstraint(Sketcher.Constraint("Vertical", 4, 3, 5, 3))
sketch5.addConstraint(Sketcher.Constraint("Vertical", 8, 3, 9, 3))
sketch5.addConstraint(Sketcher.Constraint("Vertical", 9, 3, 10, 3))
sketch5.addConstraint(Sketcher.Constraint("Vertical", 10, 3, 11, 3))
sketch5.addConstraint(Sketcher.Constraint("Vertical", 11, 3, 12, 3))
sketch5.addConstraint(Sketcher.Constraint("Vertical", 12, 3, 13, 3))
sketch5.addConstraint(Sketcher.Constraint("Vertical", 13, 3, 14, 3))
sketch5.addConstraint(Sketcher.Constraint("Vertical", 5, 3, 17, 3))
sketch5.addConstraint(Sketcher.Constraint("Vertical", 6, 3, 18, 3))
sketch5.addConstraint(Sketcher.Constraint("Vertical", 7, 3, 19, 3))
sketch5.addConstraint(Sketcher.Constraint("Diameter", 0, 3.2))
sketch5.addConstraint(Sketcher.Constraint("DistanceY", 0, 3, -1, 1, 312.0))
sketch5.addConstraint(Sketcher.Constraint("DistanceX", -1, 1, 6, 3, 70.0))
sketch5.addConstraint(Sketcher.Constraint("DistanceX", -1, 1, 7, 3, 100.0))
sketch5.addConstraint(Sketcher.Constraint("DistanceY", 1, 3, 2, 3, 45.0))
sketch5.addConstraint(Sketcher.Constraint("DistanceY", 3, 3, 4, 3, 90.0))
sketch5.addConstraint(Sketcher.Constraint("DistanceY", 3, 3, 5, 3, 45.0))
sketch5.addConstraint(Sketcher.Constraint("DistanceX", 4, 3, 8, 3, 155.0))
sketch5.addConstraint(Sketcher.Constraint("DistanceX", -1, 1, 0, 3, 7.5))
sketch5.addConstraint(Sketcher.Constraint("DistanceY", 1, 3, -1, 1, 267.3))
sketch5.addConstraint(Sketcher.Constraint("DistanceY", 3, 3, -1, 1, 97.5))
sketch5.addConstraint(Sketcher.Constraint("DistanceY", 18, 3, -1, 1, 267.5))
sketch5.addConstraint(Sketcher.Constraint("DistanceY", 14, 3, 15, 3, 14.244759))
sketch5.addConstraint(Sketcher.Constraint("DistanceX", 16, 3, 15, 3, 48.675671))
sketch5.addConstraint(Sketcher.Constraint("DistanceY", 14, 3, -1, 1, 342.754952))
sketch5.addConstraint(Sketcher.Constraint("DistanceX", -1, 1, 15, 3, 109.337835))
pocket4 = body.newObject("PartDesign::Pocket", "Pocket003")
pocket4.Profile = sketch5
pocket4.Type = "ThroughAll"
pocket4.Reversed = True

sketch6 = body.newObject("Sketcher::SketchObject", "Sketch005")
sketch6.AttachmentSupport = (doc.getObject("XZ_Plane"), [""])
sketch6.MapMode = "FlatFace"
sketch6.addGeometry(Part.LineSegment(Vector(-66, -45, 0), Vector(-66, -60, 0)), False)
sketch6.addGeometry(Part.LineSegment(Vector(-66, -60, 0), Vector(0, -60, 0)), False)
sketch6.addGeometry(Part.LineSegment(Vector(0, -60, 0), Vector(0, -45, 0)), False)
sketch6.addGeometry(Part.LineSegment(Vector(0, -45, 0), Vector(-66, -45, 0)), False)
sketch6.addGeometry(Part.Circle(Vector(-45, -52.5, 0), Vector(0, 0, 1), 1.6), False)
sketch6.addGeometry(Part.Circle(Vector(-21, -52.5, 0), Vector(0, 0, 1), 1.6), False)
sketch6.addGeometry(Part.LineSegment(Vector(170, -45, 0), Vector(170, -60, 0)), False)
sketch6.addGeometry(Part.LineSegment(Vector(170, -60, 0), Vector(236, -60, 0)), False)
sketch6.addGeometry(Part.LineSegment(Vector(236, -60, 0), Vector(236, -45, 0)), False)
sketch6.addGeometry(Part.LineSegment(Vector(236, -45, 0), Vector(170, -45, 0)), False)
sketch6.addGeometry(Part.Circle(Vector(191, -52.5, 0), Vector(0, 0, 1), 1.6), False)
sketch6.addGeometry(Part.Circle(Vector(215, -52.5, 0), Vector(0, 0, 1), 1.6), False)
sketch6.addConstraint(Sketcher.Constraint("Coincident", 0, 2, 1, 1))
sketch6.addConstraint(Sketcher.Constraint("Coincident", 1, 2, 2, 1))
sketch6.addConstraint(Sketcher.Constraint("Coincident", 2, 2, 3, 1))
sketch6.addConstraint(Sketcher.Constraint("Coincident", 3, 2, 0, 1))
sketch6.addConstraint(Sketcher.Constraint("Coincident", 6, 2, 7, 1))
sketch6.addConstraint(Sketcher.Constraint("Coincident", 7, 2, 8, 1))
sketch6.addConstraint(Sketcher.Constraint("Coincident", 8, 2, 9, 1))
sketch6.addConstraint(Sketcher.Constraint("Coincident", 9, 2, 6, 1))
sketch6.addConstraint(Sketcher.Constraint("Vertical", 0))
sketch6.addConstraint(Sketcher.Constraint("Horizontal", 1))
sketch6.addConstraint(Sketcher.Constraint("Vertical", 2))
sketch6.addConstraint(Sketcher.Constraint("Horizontal", 3))
sketch6.addConstraint(Sketcher.Constraint("Vertical", 6))
sketch6.addConstraint(Sketcher.Constraint("Horizontal", 7))
sketch6.addConstraint(Sketcher.Constraint("Vertical", 8))
sketch6.addConstraint(Sketcher.Constraint("Horizontal", 9))
sketch6.addConstraint(Sketcher.Constraint("Equal", 4, 5))
sketch6.addConstraint(Sketcher.Constraint("Equal", 5, 10))
sketch6.addConstraint(Sketcher.Constraint("Equal", 10, 11))
sketch6.addConstraint(Sketcher.Constraint("PointOnObject", 1, 2, -2))
sketch6.addConstraint(Sketcher.Constraint("Horizontal", 4, 3, 5, 3))
sketch6.addConstraint(Sketcher.Constraint("Horizontal", 5, 3, 10, 3))
sketch6.addConstraint(Sketcher.Constraint("Horizontal", 10, 3, 11, 3))
sketch6.addConstraint(Sketcher.Constraint("Horizontal", 1, 2, 6, 2))
sketch6.addConstraint(Sketcher.Constraint("Horizontal", 3, 2, 8, 2))
sketch6.addConstraint(Sketcher.Constraint("Equal", 3, 7))
sketch6.addConstraint(Sketcher.Constraint("Diameter", 4, 3.2))
sketch6.addConstraint(Sketcher.Constraint("DistanceX", 1, 1, 1, 2, 66.0))
sketch6.addConstraint(Sketcher.Constraint("DistanceY", 0, 2, 0, 1, 15.0))
sketch6.addConstraint(Sketcher.Constraint("DistanceX", 4, 3, -1, 1, 45.0))
sketch6.addConstraint(Sketcher.Constraint("DistanceX", 5, 3, -1, 1, 21.0))
sketch6.addConstraint(Sketcher.Constraint("DistanceX", -1, 1, 10, 3, 191.0))
sketch6.addConstraint(Sketcher.Constraint("DistanceX", -1, 1, 11, 3, 215.0))
sketch6.addConstraint(Sketcher.Constraint("DistanceY", 0, 2, -1, 1, 60.0))
sketch6.addConstraint(Sketcher.Constraint("DistanceX", -1, 1, 6, 2, 170.0))
sketch6.addConstraint(Sketcher.Constraint("DistanceY", 4, 3, -1, 1, 52.5))
pad2 = body.newObject("PartDesign::Pad", "Pad001")
pad2.Profile = sketch6
pad2.Length = 3
pad2.Reversed = True
doc.recompute()

fillet3 = body.newObject("PartDesign::Fillet", "Fillet002")
fillet3.Base = (pad2, edges_at(pad2, [
    (19, 1.5, 0),
    (61, 1.5, 0),
    (109, 1.5, 0),
    (109, 1.5, -19),
    (151, 1.5, -19),
    (151, 1.5, 0),
    (0, 1.5, -45),
    (0, 1.5, -60),
    (-66, 1.5, -60),
    (-66, 1.5, -45),
    (170, 1.5, -60),
    (170, 1.5, -45),
    (236, 1.5, -45),
    (236, 1.5, -60),
]))
fillet3.Radius = 5

sketch7 = body.newObject("Sketcher::SketchObject", "Sketch006")
sketch7.AttachmentSupport = (doc.getObject("XZ_Plane"), [""])
sketch7.MapMode = "FlatFace"
sketch7.AttachmentOffset = App.Placement(Vector(0, 0, -3), App.Rotation())
sketch7.addGeometry(Part.Circle(Vector(130, -171.5, 0), Vector(0, 0, 1), 1.6), False)
sketch7.addGeometry(Part.Circle(Vector(145, -171.5, 0), Vector(0, 0, 1), 1.6), False)
sketch7.addGeometry(Part.Circle(Vector(145, -159.5, 0), Vector(0, 0, 1), 1.6), False)
sketch7.addGeometry(Part.Circle(Vector(130, -159.5, 0), Vector(0, 0, 1), 1.6), False)
sketch7.addGeometry(Part.Circle(Vector(25, -171.5, 0), Vector(0, 0, 1), 1.6), False)
sketch7.addGeometry(Part.Circle(Vector(40, -171.5, 0), Vector(0, 0, 1), 1.6), False)
sketch7.addGeometry(Part.Circle(Vector(40, -159.5, 0), Vector(0, 0, 1), 1.6), False)
sketch7.addGeometry(Part.Circle(Vector(25, -159.5, 0), Vector(0, 0, 1), 1.6), False)
sketch7.addGeometry(Part.Circle(Vector(70, -242, 0), Vector(0, 0, 1), 1.6), False)
sketch7.addGeometry(Part.Circle(Vector(100, -242, 0), Vector(0, 0, 1), 1.6), False)
sketch7.addConstraint(Sketcher.Constraint("Equal", 0, 1))
sketch7.addConstraint(Sketcher.Constraint("Equal", 1, 2))
sketch7.addConstraint(Sketcher.Constraint("Equal", 2, 3))
sketch7.addConstraint(Sketcher.Constraint("Equal", 3, 4))
sketch7.addConstraint(Sketcher.Constraint("Equal", 4, 5))
sketch7.addConstraint(Sketcher.Constraint("Equal", 5, 6))
sketch7.addConstraint(Sketcher.Constraint("Equal", 6, 7))
sketch7.addConstraint(Sketcher.Constraint("Equal", 7, 8))
sketch7.addConstraint(Sketcher.Constraint("Equal", 8, 9))
sketch7.addConstraint(Sketcher.Constraint("Horizontal", 0, 3, 1, 3))
sketch7.addConstraint(Sketcher.Constraint("Horizontal", 2, 3, 3, 3))
sketch7.addConstraint(Sketcher.Constraint("Horizontal", 1, 3, 4, 3))
sketch7.addConstraint(Sketcher.Constraint("Horizontal", 4, 3, 5, 3))
sketch7.addConstraint(Sketcher.Constraint("Horizontal", 3, 3, 6, 3))
sketch7.addConstraint(Sketcher.Constraint("Horizontal", 6, 3, 7, 3))
sketch7.addConstraint(Sketcher.Constraint("Horizontal", 8, 3, 9, 3))
sketch7.addConstraint(Sketcher.Constraint("Vertical", 1, 3, 2, 3))
sketch7.addConstraint(Sketcher.Constraint("Vertical", 0, 3, 3, 3))
sketch7.addConstraint(Sketcher.Constraint("Vertical", 5, 3, 6, 3))
sketch7.addConstraint(Sketcher.Constraint("Vertical", 4, 3, 7, 3))
sketch7.addConstraint(Sketcher.Constraint("Diameter", 0, 3.2))
sketch7.addConstraint(Sketcher.Constraint("DistanceX", -1, 1, 0, 3, 130.0))
sketch7.addConstraint(Sketcher.Constraint("DistanceX", -1, 1, 1, 3, 145.0))
sketch7.addConstraint(Sketcher.Constraint("DistanceX", -1, 1, 4, 3, 25.0))
sketch7.addConstraint(Sketcher.Constraint("DistanceX", -1, 1, 5, 3, 40.0))
sketch7.addConstraint(Sketcher.Constraint("DistanceX", -1, 1, 8, 3, 70.0))
sketch7.addConstraint(Sketcher.Constraint("DistanceY", 8, 3, -1, 1, 242.0))
sketch7.addConstraint(Sketcher.Constraint("DistanceX", -1, 1, 9, 3, 100.0))
sketch7.addConstraint(Sketcher.Constraint("DistanceY", 1, 3, 2, 3, 12.0))
sketch7.addConstraint(Sketcher.Constraint("DistanceY", 0, 3, -1, 1, 171.5))
pocket5 = body.newObject("PartDesign::Pocket", "Pocket004")
pocket5.Profile = sketch7
pocket5.Type = "ThroughAll"
pocket5.Reversed = True

sketch8 = body.newObject("Sketcher::SketchObject", "Sketch007")
sketch8.AttachmentSupport = (doc.getObject("XZ_Plane"), [""])
sketch8.MapMode = "FlatFace"
sketch8.AttachmentOffset = App.Placement(Vector(0, 0, -3), App.Rotation())
sketch8.addGeometry(Part.Circle(Vector(-45, -307.5, 0), Vector(0, 0, 1), 1.6), False)
sketch8.addGeometry(Part.Circle(Vector(-15, -307.5, 0), Vector(0, 0, 1), 1.6), False)
sketch8.addGeometry(Part.Circle(Vector(-45, -327.5, 0), Vector(0, 0, 1), 1.6), False)
sketch8.addGeometry(Part.Circle(Vector(-15, -327.5, 0), Vector(0, 0, 1), 1.6), False)
sketch8.addGeometry(Part.Circle(Vector(185, -307.5, 0), Vector(0, 0, 1), 1.6), False)
sketch8.addGeometry(Part.Circle(Vector(185, -327.5, 0), Vector(0, 0, 1), 1.6), False)
sketch8.addGeometry(Part.Circle(Vector(215, -307.5, 0), Vector(0, 0, 1), 1.6), False)
sketch8.addGeometry(Part.Circle(Vector(215, -327.5, 0), Vector(0, 0, 1), 1.6), False)
sketch8.addConstraint(Sketcher.Constraint("Equal", 0, 1))
sketch8.addConstraint(Sketcher.Constraint("Equal", 1, 2))
sketch8.addConstraint(Sketcher.Constraint("Equal", 2, 3))
sketch8.addConstraint(Sketcher.Constraint("Equal", 3, 4))
sketch8.addConstraint(Sketcher.Constraint("Equal", 4, 5))
sketch8.addConstraint(Sketcher.Constraint("Equal", 5, 6))
sketch8.addConstraint(Sketcher.Constraint("Equal", 6, 7))
sketch8.addConstraint(Sketcher.Constraint("Horizontal", 0, 3, 1, 3))
sketch8.addConstraint(Sketcher.Constraint("Horizontal", 2, 3, 3, 3))
sketch8.addConstraint(Sketcher.Constraint("Horizontal", 1, 3, 4, 3))
sketch8.addConstraint(Sketcher.Constraint("Horizontal", 3, 3, 5, 3))
sketch8.addConstraint(Sketcher.Constraint("Horizontal", 4, 3, 6, 3))
sketch8.addConstraint(Sketcher.Constraint("Horizontal", 5, 3, 7, 3))
sketch8.addConstraint(Sketcher.Constraint("Vertical", 0, 3, 2, 3))
sketch8.addConstraint(Sketcher.Constraint("Vertical", 1, 3, 3, 3))
sketch8.addConstraint(Sketcher.Constraint("Vertical", 4, 3, 5, 3))
sketch8.addConstraint(Sketcher.Constraint("Vertical", 6, 3, 7, 3))
sketch8.addConstraint(Sketcher.Constraint("Diameter", 0, 3.2))
sketch8.addConstraint(Sketcher.Constraint("DistanceX", 0, 3, -1, 1, 45.0))
sketch8.addConstraint(Sketcher.Constraint("DistanceX", 1, 3, -1, 1, 15.0))
sketch8.addConstraint(Sketcher.Constraint("DistanceX", -1, 1, 4, 3, 185.0))
sketch8.addConstraint(Sketcher.Constraint("DistanceX", -1, 1, 6, 3, 215.0))
sketch8.addConstraint(Sketcher.Constraint("DistanceY", 2, 3, 0, 3, 20.0))
sketch8.addConstraint(Sketcher.Constraint("DistanceY", 0, 3, -1, 1, 307.5))
pocket6 = body.newObject("PartDesign::Pocket", "Pocket005")
pocket6.Profile = sketch8
pocket6.Type = "ThroughAll"
pocket6.Reversed = True

sketch9 = body.newObject("Sketcher::SketchObject", "Sketch008")
sketch9.AttachmentSupport = (doc.getObject("XZ_Plane"), [""])
sketch9.MapMode = "FlatFace"
sketch9.AttachmentOffset = App.Placement(Vector(0, 0, -3), App.Rotation())
sketch9.addGeometry(Part.LineSegment(Vector(-55, -364, 0), Vector(-55, -256, 0)), False)
sketch9.addGeometry(Part.LineSegment(Vector(-55, -256, 0), Vector(225, -256, 0)), False)
sketch9.addGeometry(Part.LineSegment(Vector(225, -256, 0), Vector(225, -364, 0)), False)
sketch9.addGeometry(Part.LineSegment(Vector(225, -364, 0), Vector(-55, -364, 0)), False)
sketch9.addConstraint(Sketcher.Constraint("Coincident", 0, 2, 1, 1))
sketch9.addConstraint(Sketcher.Constraint("Coincident", 1, 2, 2, 1))
sketch9.addConstraint(Sketcher.Constraint("Coincident", 2, 2, 3, 1))
sketch9.addConstraint(Sketcher.Constraint("Coincident", 3, 2, 0, 1))
sketch9.addConstraint(Sketcher.Constraint("Vertical", 0))
sketch9.addConstraint(Sketcher.Constraint("Horizontal", 1))
sketch9.addConstraint(Sketcher.Constraint("Vertical", 2))
sketch9.addConstraint(Sketcher.Constraint("Horizontal", 3))
sketch9.addConstraint(Sketcher.Constraint("DistanceX", 1, 1, 1, 2, 280.0))
sketch9.addConstraint(Sketcher.Constraint("DistanceX", 0, 2, -1, 1, 55.0))
sketch9.addConstraint(Sketcher.Constraint("DistanceY", 0, 2, -1, 1, 255.8))
sketch9.addConstraint(Sketcher.Constraint("DistanceY", 0, 1, 0, 2, 108.680633))
pocket7 = body.newObject("PartDesign::Pocket", "Pocket006")
pocket7.Profile = sketch9
pocket7.Length = 10
pocket7.Reversed = True

doc.recompute()
